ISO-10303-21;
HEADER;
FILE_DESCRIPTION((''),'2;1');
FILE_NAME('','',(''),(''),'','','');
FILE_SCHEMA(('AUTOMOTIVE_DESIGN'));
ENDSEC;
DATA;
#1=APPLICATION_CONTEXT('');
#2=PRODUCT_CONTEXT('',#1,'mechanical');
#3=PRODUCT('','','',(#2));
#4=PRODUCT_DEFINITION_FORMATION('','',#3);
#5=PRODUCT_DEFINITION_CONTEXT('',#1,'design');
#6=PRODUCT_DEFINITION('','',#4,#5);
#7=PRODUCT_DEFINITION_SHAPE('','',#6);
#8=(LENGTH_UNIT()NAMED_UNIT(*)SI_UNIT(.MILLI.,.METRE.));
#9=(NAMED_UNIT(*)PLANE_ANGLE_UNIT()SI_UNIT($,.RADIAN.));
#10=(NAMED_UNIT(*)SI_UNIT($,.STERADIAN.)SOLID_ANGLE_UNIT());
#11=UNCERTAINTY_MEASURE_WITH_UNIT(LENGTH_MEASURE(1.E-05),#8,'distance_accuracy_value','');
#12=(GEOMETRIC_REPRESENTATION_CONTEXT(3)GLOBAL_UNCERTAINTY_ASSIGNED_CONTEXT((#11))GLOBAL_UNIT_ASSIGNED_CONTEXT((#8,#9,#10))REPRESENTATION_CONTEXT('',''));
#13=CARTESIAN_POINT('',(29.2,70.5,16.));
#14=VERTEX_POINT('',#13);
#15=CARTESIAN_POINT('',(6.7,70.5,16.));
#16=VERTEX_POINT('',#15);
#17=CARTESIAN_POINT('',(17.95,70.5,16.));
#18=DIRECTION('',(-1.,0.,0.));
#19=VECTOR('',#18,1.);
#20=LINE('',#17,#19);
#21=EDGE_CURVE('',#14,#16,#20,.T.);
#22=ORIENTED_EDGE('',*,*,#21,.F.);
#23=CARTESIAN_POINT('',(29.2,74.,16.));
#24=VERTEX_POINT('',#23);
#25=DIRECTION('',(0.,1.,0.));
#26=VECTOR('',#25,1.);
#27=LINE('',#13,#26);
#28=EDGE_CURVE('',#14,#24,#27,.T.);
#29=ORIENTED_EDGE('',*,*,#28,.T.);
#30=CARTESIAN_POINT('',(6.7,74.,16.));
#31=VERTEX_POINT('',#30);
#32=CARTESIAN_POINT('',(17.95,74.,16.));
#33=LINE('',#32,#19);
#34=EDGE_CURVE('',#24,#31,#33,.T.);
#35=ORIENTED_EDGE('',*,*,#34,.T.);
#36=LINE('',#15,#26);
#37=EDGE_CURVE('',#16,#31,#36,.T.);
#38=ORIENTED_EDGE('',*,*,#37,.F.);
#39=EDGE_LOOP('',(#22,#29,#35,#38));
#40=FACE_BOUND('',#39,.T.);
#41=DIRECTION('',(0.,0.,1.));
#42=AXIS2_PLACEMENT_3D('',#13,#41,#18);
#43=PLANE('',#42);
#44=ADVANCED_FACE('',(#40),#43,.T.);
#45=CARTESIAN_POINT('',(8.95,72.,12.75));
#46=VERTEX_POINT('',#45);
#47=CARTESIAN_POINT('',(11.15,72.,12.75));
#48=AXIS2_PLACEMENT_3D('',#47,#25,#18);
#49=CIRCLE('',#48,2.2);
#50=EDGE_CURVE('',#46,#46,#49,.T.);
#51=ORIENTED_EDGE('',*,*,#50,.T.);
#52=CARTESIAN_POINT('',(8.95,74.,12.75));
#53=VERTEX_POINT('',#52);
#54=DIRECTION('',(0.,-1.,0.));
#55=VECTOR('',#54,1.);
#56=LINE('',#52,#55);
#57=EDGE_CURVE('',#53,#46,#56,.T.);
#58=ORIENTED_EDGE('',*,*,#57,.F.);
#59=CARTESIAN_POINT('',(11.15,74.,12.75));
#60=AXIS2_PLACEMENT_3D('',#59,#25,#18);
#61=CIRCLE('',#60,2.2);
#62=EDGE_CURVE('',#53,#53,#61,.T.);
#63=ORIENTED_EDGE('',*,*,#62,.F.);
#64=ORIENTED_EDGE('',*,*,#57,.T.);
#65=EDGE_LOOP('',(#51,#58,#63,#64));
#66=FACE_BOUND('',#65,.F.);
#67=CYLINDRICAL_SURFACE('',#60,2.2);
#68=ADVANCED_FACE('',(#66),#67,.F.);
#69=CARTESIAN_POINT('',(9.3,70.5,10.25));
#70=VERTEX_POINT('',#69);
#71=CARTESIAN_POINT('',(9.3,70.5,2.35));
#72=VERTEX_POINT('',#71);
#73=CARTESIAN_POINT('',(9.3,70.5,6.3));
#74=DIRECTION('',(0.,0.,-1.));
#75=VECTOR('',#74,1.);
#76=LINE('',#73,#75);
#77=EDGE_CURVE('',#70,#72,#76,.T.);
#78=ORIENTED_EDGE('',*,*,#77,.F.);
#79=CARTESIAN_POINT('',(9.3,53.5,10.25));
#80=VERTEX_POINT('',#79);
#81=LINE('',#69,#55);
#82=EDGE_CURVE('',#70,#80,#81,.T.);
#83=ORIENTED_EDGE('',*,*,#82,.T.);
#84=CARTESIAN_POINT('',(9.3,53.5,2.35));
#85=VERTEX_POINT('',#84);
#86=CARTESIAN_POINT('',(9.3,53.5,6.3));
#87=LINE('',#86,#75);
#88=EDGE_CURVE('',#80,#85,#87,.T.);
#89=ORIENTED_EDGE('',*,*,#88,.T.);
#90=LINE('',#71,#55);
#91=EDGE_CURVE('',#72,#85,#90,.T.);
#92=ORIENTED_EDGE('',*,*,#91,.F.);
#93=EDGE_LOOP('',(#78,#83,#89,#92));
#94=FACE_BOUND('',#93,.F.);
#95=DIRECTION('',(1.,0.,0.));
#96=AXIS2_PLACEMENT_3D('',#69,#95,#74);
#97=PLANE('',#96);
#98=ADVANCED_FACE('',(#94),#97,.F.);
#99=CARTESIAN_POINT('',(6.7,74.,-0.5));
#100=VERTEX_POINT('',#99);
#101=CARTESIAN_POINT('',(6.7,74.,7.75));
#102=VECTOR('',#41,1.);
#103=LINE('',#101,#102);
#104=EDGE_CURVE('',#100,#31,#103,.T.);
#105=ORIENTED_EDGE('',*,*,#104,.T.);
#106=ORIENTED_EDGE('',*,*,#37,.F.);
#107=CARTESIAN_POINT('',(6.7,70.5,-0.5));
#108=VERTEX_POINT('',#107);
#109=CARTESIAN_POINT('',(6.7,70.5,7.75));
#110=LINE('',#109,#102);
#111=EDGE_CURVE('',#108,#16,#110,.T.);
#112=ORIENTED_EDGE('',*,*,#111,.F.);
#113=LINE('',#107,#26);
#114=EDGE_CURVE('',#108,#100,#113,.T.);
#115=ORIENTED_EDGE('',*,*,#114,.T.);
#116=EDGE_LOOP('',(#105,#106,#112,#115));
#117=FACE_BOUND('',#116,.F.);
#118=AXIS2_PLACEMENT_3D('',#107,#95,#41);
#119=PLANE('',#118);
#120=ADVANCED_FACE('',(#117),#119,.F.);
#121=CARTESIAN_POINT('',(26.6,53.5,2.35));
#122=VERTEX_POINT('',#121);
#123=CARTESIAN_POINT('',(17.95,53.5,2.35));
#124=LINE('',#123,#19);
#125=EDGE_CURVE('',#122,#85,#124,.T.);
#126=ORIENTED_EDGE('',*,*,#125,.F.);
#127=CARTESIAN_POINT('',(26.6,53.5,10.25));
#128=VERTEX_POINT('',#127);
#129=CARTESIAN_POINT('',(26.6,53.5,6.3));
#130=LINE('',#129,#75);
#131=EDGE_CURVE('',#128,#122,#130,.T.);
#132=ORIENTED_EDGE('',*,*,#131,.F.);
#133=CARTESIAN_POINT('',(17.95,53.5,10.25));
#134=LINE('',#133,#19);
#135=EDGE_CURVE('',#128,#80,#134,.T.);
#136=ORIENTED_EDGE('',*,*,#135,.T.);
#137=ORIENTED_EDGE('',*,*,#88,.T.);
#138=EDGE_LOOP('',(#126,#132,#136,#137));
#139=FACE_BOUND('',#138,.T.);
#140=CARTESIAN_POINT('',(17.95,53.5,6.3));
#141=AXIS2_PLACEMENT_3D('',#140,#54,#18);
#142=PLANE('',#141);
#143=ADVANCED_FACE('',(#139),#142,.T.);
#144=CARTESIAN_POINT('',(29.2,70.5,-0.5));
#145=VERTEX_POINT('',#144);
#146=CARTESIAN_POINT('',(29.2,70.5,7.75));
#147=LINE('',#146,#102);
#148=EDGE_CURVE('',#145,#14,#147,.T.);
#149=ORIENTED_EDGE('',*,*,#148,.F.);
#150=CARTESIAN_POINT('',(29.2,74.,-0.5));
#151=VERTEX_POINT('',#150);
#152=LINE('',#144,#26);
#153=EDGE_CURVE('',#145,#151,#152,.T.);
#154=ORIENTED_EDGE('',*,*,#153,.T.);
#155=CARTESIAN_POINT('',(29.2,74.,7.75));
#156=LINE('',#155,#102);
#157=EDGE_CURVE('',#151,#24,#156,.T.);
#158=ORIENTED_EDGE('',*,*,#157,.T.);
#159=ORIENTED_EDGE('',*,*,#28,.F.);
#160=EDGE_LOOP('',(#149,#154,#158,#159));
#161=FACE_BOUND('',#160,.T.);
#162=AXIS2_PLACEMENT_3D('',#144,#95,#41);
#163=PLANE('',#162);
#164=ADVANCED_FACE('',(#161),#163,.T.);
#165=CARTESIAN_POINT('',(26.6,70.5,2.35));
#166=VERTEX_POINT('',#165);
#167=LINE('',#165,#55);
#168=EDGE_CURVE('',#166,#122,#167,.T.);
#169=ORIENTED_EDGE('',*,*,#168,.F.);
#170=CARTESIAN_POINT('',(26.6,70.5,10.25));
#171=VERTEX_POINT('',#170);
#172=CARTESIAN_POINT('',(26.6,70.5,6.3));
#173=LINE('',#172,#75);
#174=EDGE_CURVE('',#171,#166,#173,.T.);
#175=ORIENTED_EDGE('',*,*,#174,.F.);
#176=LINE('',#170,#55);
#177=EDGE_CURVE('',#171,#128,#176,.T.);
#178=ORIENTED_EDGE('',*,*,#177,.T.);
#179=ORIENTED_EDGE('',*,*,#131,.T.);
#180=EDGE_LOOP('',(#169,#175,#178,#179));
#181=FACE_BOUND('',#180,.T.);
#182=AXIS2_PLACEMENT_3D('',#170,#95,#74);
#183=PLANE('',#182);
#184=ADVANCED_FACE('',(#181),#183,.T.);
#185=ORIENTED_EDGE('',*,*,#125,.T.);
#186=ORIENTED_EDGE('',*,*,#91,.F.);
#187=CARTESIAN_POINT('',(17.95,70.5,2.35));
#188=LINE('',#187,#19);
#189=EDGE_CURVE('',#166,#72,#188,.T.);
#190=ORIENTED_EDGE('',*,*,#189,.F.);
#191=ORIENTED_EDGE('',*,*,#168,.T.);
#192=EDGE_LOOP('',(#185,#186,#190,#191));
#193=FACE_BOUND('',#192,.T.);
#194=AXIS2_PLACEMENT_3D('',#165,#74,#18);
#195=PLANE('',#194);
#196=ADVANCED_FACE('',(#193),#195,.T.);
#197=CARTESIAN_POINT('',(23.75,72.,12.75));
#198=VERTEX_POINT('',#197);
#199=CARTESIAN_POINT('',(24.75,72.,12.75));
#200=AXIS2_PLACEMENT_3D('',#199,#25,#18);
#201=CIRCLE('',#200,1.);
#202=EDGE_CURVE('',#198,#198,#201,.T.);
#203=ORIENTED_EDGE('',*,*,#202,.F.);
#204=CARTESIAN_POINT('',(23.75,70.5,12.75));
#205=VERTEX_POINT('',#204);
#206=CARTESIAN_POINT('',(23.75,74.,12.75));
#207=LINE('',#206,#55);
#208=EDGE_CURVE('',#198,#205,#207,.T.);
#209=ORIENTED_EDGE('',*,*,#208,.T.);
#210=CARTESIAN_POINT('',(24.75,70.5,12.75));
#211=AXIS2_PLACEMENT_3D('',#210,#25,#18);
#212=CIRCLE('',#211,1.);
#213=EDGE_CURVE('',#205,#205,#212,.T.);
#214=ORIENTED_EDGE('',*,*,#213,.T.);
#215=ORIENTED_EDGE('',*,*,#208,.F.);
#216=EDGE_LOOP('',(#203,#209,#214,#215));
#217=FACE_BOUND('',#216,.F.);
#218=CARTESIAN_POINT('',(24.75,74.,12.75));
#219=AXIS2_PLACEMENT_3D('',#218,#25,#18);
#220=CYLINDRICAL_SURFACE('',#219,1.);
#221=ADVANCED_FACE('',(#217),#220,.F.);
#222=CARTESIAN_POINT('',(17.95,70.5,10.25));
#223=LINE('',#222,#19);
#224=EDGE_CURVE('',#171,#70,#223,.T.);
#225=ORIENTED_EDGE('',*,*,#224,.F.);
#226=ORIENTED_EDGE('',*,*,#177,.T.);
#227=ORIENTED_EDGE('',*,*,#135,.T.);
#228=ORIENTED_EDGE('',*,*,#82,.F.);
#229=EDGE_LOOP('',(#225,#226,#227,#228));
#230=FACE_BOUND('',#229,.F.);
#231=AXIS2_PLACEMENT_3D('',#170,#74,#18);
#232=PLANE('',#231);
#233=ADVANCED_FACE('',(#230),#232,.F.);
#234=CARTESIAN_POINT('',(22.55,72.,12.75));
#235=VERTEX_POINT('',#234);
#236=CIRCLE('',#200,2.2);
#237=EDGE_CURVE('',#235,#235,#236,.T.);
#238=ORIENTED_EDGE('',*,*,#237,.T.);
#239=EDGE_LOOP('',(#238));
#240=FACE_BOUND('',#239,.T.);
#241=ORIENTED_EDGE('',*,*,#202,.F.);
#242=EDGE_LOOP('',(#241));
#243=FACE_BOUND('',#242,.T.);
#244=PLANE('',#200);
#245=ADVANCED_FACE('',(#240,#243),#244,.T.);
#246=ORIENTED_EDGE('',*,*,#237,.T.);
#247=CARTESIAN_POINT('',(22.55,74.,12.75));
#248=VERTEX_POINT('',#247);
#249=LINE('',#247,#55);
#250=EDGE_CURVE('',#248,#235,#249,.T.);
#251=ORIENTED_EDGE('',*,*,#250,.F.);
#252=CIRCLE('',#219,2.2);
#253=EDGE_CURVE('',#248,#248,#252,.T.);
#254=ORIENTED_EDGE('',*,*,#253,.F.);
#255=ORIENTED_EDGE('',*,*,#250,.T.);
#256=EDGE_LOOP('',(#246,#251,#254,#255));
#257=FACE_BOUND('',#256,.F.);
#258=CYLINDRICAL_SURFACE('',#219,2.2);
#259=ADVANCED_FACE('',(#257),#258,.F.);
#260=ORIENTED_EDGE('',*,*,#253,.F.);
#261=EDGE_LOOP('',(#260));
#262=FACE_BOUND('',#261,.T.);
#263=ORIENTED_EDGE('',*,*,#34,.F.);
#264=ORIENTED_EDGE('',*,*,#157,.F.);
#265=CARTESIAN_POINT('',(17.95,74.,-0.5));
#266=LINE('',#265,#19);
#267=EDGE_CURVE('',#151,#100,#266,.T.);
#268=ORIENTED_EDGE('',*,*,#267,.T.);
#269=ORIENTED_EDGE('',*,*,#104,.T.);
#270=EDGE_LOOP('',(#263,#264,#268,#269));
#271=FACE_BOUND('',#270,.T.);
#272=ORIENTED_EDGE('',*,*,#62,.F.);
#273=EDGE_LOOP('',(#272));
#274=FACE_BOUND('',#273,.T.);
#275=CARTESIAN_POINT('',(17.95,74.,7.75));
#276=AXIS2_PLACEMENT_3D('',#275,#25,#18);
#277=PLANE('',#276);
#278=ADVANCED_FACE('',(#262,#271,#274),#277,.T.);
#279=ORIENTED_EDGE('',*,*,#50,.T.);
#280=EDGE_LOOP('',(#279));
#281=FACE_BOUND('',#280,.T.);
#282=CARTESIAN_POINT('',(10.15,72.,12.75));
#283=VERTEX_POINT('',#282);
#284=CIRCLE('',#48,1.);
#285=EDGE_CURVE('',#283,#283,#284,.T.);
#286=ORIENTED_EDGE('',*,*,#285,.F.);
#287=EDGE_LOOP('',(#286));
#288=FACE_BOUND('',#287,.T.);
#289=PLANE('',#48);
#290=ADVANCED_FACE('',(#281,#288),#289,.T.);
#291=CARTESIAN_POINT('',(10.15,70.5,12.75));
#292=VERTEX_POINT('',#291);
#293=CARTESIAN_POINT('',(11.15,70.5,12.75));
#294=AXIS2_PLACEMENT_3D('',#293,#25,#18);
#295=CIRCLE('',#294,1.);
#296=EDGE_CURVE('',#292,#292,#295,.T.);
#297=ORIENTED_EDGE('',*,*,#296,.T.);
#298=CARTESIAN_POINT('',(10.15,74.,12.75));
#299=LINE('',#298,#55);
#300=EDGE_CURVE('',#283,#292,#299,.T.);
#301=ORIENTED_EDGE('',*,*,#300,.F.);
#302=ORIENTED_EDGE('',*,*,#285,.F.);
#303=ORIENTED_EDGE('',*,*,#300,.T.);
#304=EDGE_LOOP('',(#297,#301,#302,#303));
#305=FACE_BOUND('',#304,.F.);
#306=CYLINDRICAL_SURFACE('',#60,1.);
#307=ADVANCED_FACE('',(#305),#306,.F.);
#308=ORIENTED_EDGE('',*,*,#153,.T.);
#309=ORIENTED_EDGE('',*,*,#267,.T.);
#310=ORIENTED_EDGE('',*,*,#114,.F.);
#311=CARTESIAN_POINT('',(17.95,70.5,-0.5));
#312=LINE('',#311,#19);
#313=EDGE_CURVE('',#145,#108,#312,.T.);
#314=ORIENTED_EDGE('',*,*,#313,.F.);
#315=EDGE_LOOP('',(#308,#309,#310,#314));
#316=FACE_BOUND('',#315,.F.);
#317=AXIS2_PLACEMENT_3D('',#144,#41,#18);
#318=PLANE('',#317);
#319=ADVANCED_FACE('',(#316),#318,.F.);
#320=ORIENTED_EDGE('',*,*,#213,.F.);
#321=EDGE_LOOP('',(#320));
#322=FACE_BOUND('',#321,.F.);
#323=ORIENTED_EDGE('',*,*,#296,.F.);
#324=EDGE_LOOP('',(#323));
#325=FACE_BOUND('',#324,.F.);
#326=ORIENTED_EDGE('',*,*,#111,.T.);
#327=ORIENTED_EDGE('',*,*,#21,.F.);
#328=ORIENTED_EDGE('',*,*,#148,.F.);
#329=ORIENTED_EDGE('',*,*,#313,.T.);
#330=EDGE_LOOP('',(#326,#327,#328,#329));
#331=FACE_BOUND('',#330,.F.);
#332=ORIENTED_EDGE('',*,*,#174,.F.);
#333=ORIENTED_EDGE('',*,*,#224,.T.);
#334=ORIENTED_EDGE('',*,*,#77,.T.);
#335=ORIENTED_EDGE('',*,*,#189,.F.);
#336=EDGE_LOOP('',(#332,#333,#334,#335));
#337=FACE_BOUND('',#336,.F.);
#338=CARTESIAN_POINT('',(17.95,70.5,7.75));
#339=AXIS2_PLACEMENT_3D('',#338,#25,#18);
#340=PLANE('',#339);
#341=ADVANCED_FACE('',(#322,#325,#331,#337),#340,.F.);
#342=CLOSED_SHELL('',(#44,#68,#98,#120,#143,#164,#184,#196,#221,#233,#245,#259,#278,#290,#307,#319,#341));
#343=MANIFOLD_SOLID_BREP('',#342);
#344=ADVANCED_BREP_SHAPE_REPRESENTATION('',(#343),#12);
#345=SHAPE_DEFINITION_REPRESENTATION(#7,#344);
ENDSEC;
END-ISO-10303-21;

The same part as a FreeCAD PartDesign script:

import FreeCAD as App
import Part
import Sketcher
from FreeCAD import Vector


def add_polygon(sketch, points):
    """Adds a closed chain of lines whose ends are joined by coincident constraints."""
    first, n = sketch.GeometryCount, len(points)
    for a, b in zip(points, points[1:] + points[:1]):
        sketch.addGeometry(Part.LineSegment(App.Vector(*a, 0), App.Vector(*b, 0)), False)
    for i in range(n):
        sketch.addConstraint(Sketcher.Constraint("Coincident", first + i, 2, first + (i + 1) % n, 1))

doc = App.newDocument("Part")
params = doc.addObject("Spreadsheet::Sheet", "Params")
for row, (alias, value) in enumerate([
    ("sketch1_width", "22.5 mm"),
    ("sketch1_height", "16.5 mm"),
    ("pad1_length", "3.5 mm"),
    ("sketch2_diameter", "4.4 mm"),
    ("pocket1_length", "2 mm"),
    ("sketch3_diameter", "2 mm"),
    ("sketch4_width", "17.3 mm"),
    ("sketch4_height", "7.9 mm"),
    ("pad2_length", "17 mm"),
], start=1):
    params.set(f"A{row}", alias)
    params.set(f"B{row}", "=" + value)
    params.setAlias(f"B{row}", alias)

body = doc.addObject("PartDesign::Body", "Body")

# Sketch on XZ plane
sketch1 = body.newObject("Sketcher::SketchObject", "Sketch")
sketch1.AttachmentSupport = (doc.getObject("XZ_Plane"), [""])
sketch1.MapMode = "FlatFace"
add_polygon(sketch1, [(0, 16), (0, 0), (22, 0), (22, 16)])  # lines 0-3
sketch1.addConstraint(Sketcher.Constraint("Vertical", 0))
sketch1.addConstraint(Sketcher.Constraint("Horizontal", 1))
sketch1.addConstraint(Sketcher.Constraint("Vertical", 2))
sketch1.addConstraint(Sketcher.Constraint("Horizontal", 3))
sketch1.addConstraint(Sketcher.Constraint("Coincident", 0, 2, -1, 1))
sketch1.addConstraint(Sketcher.Constraint("DistanceX", 1, 1, 1, 2, 22.5))
sketch1.addConstraint(Sketcher.Constraint("DistanceY", 0, 2, 0, 1, 16.5))
sketch1.setExpression("Constraints[9]", "Params.sketch1_width")
sketch1.setExpression("Constraints[10]", "Params.sketch1_height")
pad1 = body.newObject("PartDesign::Pad", "Pad")
pad1.Profile = sketch1
pad1.setExpression("Length", "Params.pad1_length")

# Sketch on XZ plane
sketch2 = body.newObject("Sketcher::SketchObject", "Sketch001")
sketch2.AttachmentSupport = (doc.getObject("XZ_Plane"), [""])
sketch2.MapMode = "FlatFace"
sketch2.AttachmentOffset = App.Placement(Vector(0, 0, 3.5), App.Rotation())
sketch2.addGeometry(Part.Circle(Vector(4.5, 13.2, 0), Vector(0, 0, 1), 2.2), False)
sketch2.addGeometry(Part.Circle(Vector(18.1, 13.2, 0), Vector(0, 0, 1), 2.2), False)
sketch2.addConstraint(Sketcher.Constraint("Equal", 0, 1))
sketch2.addConstraint(Sketcher.Constraint("Horizontal", 0, 3, 1, 3))
sketch2.addConstraint(Sketcher.Constraint("Diameter", 0, 4.4))
sketch2.addConstraint(Sketcher.Constraint("DistanceX", 0, 3, 1, 3, 13.6))
sketch2.addConstraint(Sketcher.Constraint("DistanceX", -1, 1, 0, 3, 4.45))
sketch2.addConstraint(Sketcher.Constraint("DistanceY", -1, 1, 0, 3, 13.25))
sketch2.setExpression("Constraints[2]", "Params.sketch2_diameter")
pocket1 = body.newObject("PartDesign::Pocket", "Pocket")
pocket1.Profile = sketch2
pocket1.setExpression("Length", "Params.pocket1_length")

# Sketch on XZ plane
sketch3 = body.newObject("Sketcher::SketchObject", "Sketch002")
sketch3.AttachmentSupport = (doc.getObject("XZ_Plane"), [""])
sketch3.MapMode = "FlatFace"
sketch3.AttachmentOffset = App.Placement(Vector(0, 0, 3.5), App.Rotation())
sketch3.addGeometry(Part.Circle(Vector(4.5, 13.2, 0), Vector(0, 0, 1), 1), False)
sketch3.addGeometry(Part.Circle(Vector(18.1, 13.2, 0), Vector(0, 0, 1), 1), False)
sketch3.addConstraint(Sketcher.Constraint("Equal", 0, 1))
sketch3.addConstraint(Sketcher.Constraint("Horizontal", 0, 3, 1, 3))
sketch3.addConstraint(Sketcher.Constraint("Diameter", 0, 2.0))
sketch3.addConstraint(Sketcher.Constraint("DistanceX", 0, 3, 1, 3, 13.6))
sketch3.addConstraint(Sketcher.Constraint("DistanceX", -1, 1, 0, 3, 4.45))
sketch3.addConstraint(Sketcher.Constraint("DistanceY", -1, 1, 0, 3, 13.25))
sketch3.setExpression("Constraints[2]", "Params.sketch3_diameter")
pocket2 = body.newObject("PartDesign::Pocket", "Pocket001")
pocket2.Profile = sketch3
pocket2.Type = "ThroughAll"

# Sketch on XZ plane
sketch4 = body.newObject("Sketcher::SketchObject", "Sketch003")
sketch4.AttachmentSupport = (doc.getObject("XZ_Plane"), [""])
sketch4.MapMode = "FlatFace"
add_polygon(sketch4, [(3, 3), (3, 11), (20, 11), (20, 3)])  # lines 0-3
sketch4.addConstraint(Sketcher.Constraint("Vertical", 0))
sketch4.addConstraint(Sketcher.Constraint("Horizontal", 1))
sketch4.addConstraint(Sketcher.Constraint("Vertical", 2))
sketch4.addConstraint(Sketcher.Constraint("Horizontal", 3))
sketch4.addConstraint(Sketcher.Constraint("DistanceX", 1, 1, 1, 2, 17.3))
sketch4.addConstraint(Sketcher.Constraint("DistanceY", 0, 1, 0, 2, 7.9))
sketch4.addConstraint(Sketcher.Constraint("DistanceX", -1, 1, 0, 2, 2.6))
sketch4.addConstraint(Sketcher.Constraint("DistanceY", -1, 1, 0, 2, 10.75))
sketch4.setExpression("Constraints[8]", "Params.sketch4_width")
sketch4.setExpression("Constraints[9]", "Params.sketch4_height")
pad2 = body.newObject("PartDesign::Pad", "Pad001")
pad2.Profile = sketch4
pad2.setExpression("Length", "Params.pad2_length")
pad2.Reversed = True
body2 = doc.addObject("PartDesign::Body", "Body001")
doc.recompute()

body.Placement = App.Placement(Vector(29.2, 70.5, -0.5), App.Rotation(Vector(0, 0, 1), 180))
boolean = body2.newObject("PartDesign::Boolean", "Boolean")
boolean.Type = "Fuse"
boolean.addObjects([body])

doc.recompute()
